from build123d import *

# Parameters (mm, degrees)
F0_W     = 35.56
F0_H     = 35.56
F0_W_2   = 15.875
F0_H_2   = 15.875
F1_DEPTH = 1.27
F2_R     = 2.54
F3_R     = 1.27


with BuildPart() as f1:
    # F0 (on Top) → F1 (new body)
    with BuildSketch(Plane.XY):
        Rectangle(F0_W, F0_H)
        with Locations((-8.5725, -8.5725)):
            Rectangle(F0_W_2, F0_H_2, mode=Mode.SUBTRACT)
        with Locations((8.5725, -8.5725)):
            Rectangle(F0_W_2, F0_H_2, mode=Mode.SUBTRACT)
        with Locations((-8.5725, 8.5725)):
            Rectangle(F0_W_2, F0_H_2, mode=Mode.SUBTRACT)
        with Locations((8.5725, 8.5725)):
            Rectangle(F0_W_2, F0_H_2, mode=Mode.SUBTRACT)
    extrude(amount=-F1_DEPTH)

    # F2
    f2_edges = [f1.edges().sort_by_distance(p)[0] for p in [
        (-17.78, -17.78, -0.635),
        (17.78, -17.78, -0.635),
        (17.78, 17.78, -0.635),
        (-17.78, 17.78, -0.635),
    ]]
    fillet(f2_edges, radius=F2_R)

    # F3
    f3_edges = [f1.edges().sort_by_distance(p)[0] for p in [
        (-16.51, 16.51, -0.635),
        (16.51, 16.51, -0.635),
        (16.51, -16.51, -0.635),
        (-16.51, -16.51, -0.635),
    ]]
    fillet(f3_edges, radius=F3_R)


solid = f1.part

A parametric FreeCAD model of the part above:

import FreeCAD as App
import Part
import Sketcher
from FreeCAD import Vector
Q = App.Units.Quantity


def edges_at(feature, points):
    """Names of the edges that pass closest to the given points."""
    edges = feature.Shape.Edges
    near = lambda p: min(range(len(edges)), key=lambda i: edges[i].distToShape(Part.Vertex(*p))[0])
    return sorted({f"Edge{near(p) + 1}" for p in points})

doc = App.newDocument("Part")
body = doc.addObject("PartDesign::Body", "Body")

# Sketch on XY plane
sketch1 = body.newObject("Sketcher::SketchObject", "Sketch")
sketch1.AttachmentSupport = (doc.getObject("XY_Plane"), [""])
sketch1.MapMode = "FlatFace"
sketch1.addGeometry([
    Part.LineSegment(Vector(-18, 18, 0), Vector(-18, -18, 0)),  # 0
    Part.LineSegment(Vector(-18, -18, 0), Vector(18, -18, 0)),  # 1
    Part.LineSegment(Vector(18, -18, 0), Vector(18, 18, 0)),  # 2
    Part.LineSegment(Vector(18, 18, 0), Vector(-18, 18, 0)),  # 3
    Part.LineSegment(Vector(-1, -17, 0), Vector(-17, -17, 0)),  # 4
    Part.LineSegment(Vector(-17, -17, 0), Vector(-17, -1, 0)),  # 5
    Part.LineSegment(Vector(-17, -1, 0), Vector(-1, -1, 0)),  # 6
    Part.LineSegment(Vector(-1, -1, 0), Vector(-1, -17, 0)),  # 7
    Part.LineSegment(Vector(17, -17, 0), Vector(1, -17, 0)),  # 8
    Part.LineSegment(Vector(1, -17, 0), Vector(1, -1, 0)),  # 9
    Part.LineSegment(Vector(1, -1, 0), Vector(17, -1, 0)),  # 10
    Part.LineSegment(Vector(17, -1, 0), Vector(17, -17, 0)),  # 11
    Part.LineSegment(Vector(-1, 1, 0), Vector(-17, 1, 0)),  # 12
    Part.LineSegment(Vector(-17, 1, 0), Vector(-17, 17, 0)),  # 13
    Part.LineSegment(Vector(-17, 17, 0), Vector(-1, 17, 0)),  # 14
    Part.LineSegment(Vector(-1, 17, 0), Vector(-1, 1, 0)),  # 15
    Part.LineSegment(Vector(17, 1, 0), Vector(1, 1, 0)),  # 16
    Part.LineSegment(Vector(1, 1, 0), Vector(1, 17, 0)),  # 17
    Part.LineSegment(Vector(1, 17, 0), Vector(17, 17, 0)),  # 18
    Part.LineSegment(Vector(17, 17, 0), Vector(17, 1, 0)),  # 19
], False)
sketch1.addConstraint([
    Sketcher.Constraint("Coincident", 0, 2, 1, 1),
    Sketcher.Constraint("Coincident", 1, 2, 2, 1),
    Sketcher.Constraint("Coincident", 2, 2, 3, 1),
    Sketcher.Constraint("Coincident", 3, 2, 0, 1),
    Sketcher.Constraint("Coincident", 4, 2, 5, 1),
    Sketcher.Constraint("Coincident", 5, 2, 6, 1),
    Sketcher.Constraint("Coincident", 6, 2, 7, 1),
    Sketcher.Constraint("Coincident", 7, 2, 4, 1),
    Sketcher.Constraint("Coincident", 8, 2, 9, 1),
    Sketcher.Constraint("Coincident", 9, 2, 10, 1),
    Sketcher.Constraint("Coincident", 10, 2, 11, 1),
    Sketcher.Constraint("Coincident", 11, 2, 8, 1),
    Sketcher.Constraint("Coincident", 12, 2, 13, 1),
    Sketcher.Constraint("Coincident", 13, 2, 14, 1),
    Sketcher.Constraint("Coincident", 14, 2, 15, 1),
    Sketcher.Constraint("Coincident", 15, 2, 12, 1),
    Sketcher.Constraint("Coincident", 16, 2, 17, 1),
    Sketcher.Constraint("Coincident", 17, 2, 18, 1),
    Sketcher.Constraint("Coincident", 18, 2, 19, 1),
    Sketcher.Constraint("Coincident", 19, 2, 16, 1),
    Sketcher.Constraint("Vertical", 0),
    Sketcher.Constraint("Horizontal", 1),
    Sketcher.Constraint("Vertical", 2),
    Sketcher.Constraint("Horizontal", 3),
    Sketcher.Constraint("Horizontal", 4),
    Sketcher.Constraint("Vertical", 5),
    Sketcher.Constraint("Horizontal", 6),
    Sketcher.Constraint("Vertical", 7),
    Sketcher.Constraint("Horizontal", 8),
    Sketcher.Constraint("Vertical", 9),
    Sketcher.Constraint("Horizontal", 10),
    Sketcher.Constraint("Vertical", 11),
    Sketcher.Constraint("Horizontal", 12),
    Sketcher.Constraint("Vertical", 13),
    Sketcher.Constraint("Horizontal", 14),
    Sketcher.Constraint("Vertical", 15),
    Sketcher.Constraint("Horizontal", 16),
    Sketcher.Constraint("Vertical", 17),
    Sketcher.Constraint("Horizontal", 18),
    Sketcher.Constraint("Vertical", 19),
    Sketcher.Constraint("Symmetric", 0, 2, 2, 2, -1, 1),
    Sketcher.Constraint("Symmetric", 10, 2, 12, 2, -1, 1),
    Sketcher.Constraint("Symmetric", 8, 2, 14, 2, -1, 1),
    Sketcher.Constraint("Symmetric", 6, 2, 16, 2, -1, 1),
    Sketcher.Constraint("Symmetric", 4, 2, 18, 2, -1, 1),
    Sketcher.Constraint("Symmetric", 7, 2, 8, 2, -2),
    Sketcher.Constraint("Symmetric", 5, 2, 10, 2, -2),
    Sketcher.Constraint("Equal", 3, 0),
    Sketcher.Constraint("Equal", 18, 5),
    Sketcher.Constraint("DistanceX", 1, 1, 1, 2, Q("1.4 in")),
    Sketcher.Constraint("DistanceX", 4, 2, 4, 1, Q("0.625 in")),
    Sketcher.Constraint("DistanceX", 4, 2, -1, 1, Q("0.65 in")),
    Sketcher.Constraint("DistanceY", 4, 2, -1, 1, Q("0.65 in")),
])
pad1 = body.newObject("PartDesign::Pad", "Pad")
pad1.Profile = sketch1
pad1.Length = Q("0.05 in")
pad1.Reversed = True
doc.recompute()

fillet = body.newObject("PartDesign::Fillet", "Fillet")
fillet.Base = (pad1, edges_at(pad1, [
    (-17.78, -17.78, -0.635),
    (17.78, -17.78, -0.635),
    (17.78, 17.78, -0.635),
    (-17.78, 17.78, -0.635),
]))
fillet.Radius = Q("0.1 in")
doc.recompute()

fillet2 = body.newObject("PartDesign::Fillet", "Fillet001")
fillet2.Base = (fillet, edges_at(fillet, [
    (-16.51, 16.51, -0.635),
    (16.51, 16.51, -0.635),
    (16.51, -16.51, -0.635),
    (-16.51, -16.51, -0.635),
]))
fillet2.Radius = Q("0.05 in")

doc.recompute()
